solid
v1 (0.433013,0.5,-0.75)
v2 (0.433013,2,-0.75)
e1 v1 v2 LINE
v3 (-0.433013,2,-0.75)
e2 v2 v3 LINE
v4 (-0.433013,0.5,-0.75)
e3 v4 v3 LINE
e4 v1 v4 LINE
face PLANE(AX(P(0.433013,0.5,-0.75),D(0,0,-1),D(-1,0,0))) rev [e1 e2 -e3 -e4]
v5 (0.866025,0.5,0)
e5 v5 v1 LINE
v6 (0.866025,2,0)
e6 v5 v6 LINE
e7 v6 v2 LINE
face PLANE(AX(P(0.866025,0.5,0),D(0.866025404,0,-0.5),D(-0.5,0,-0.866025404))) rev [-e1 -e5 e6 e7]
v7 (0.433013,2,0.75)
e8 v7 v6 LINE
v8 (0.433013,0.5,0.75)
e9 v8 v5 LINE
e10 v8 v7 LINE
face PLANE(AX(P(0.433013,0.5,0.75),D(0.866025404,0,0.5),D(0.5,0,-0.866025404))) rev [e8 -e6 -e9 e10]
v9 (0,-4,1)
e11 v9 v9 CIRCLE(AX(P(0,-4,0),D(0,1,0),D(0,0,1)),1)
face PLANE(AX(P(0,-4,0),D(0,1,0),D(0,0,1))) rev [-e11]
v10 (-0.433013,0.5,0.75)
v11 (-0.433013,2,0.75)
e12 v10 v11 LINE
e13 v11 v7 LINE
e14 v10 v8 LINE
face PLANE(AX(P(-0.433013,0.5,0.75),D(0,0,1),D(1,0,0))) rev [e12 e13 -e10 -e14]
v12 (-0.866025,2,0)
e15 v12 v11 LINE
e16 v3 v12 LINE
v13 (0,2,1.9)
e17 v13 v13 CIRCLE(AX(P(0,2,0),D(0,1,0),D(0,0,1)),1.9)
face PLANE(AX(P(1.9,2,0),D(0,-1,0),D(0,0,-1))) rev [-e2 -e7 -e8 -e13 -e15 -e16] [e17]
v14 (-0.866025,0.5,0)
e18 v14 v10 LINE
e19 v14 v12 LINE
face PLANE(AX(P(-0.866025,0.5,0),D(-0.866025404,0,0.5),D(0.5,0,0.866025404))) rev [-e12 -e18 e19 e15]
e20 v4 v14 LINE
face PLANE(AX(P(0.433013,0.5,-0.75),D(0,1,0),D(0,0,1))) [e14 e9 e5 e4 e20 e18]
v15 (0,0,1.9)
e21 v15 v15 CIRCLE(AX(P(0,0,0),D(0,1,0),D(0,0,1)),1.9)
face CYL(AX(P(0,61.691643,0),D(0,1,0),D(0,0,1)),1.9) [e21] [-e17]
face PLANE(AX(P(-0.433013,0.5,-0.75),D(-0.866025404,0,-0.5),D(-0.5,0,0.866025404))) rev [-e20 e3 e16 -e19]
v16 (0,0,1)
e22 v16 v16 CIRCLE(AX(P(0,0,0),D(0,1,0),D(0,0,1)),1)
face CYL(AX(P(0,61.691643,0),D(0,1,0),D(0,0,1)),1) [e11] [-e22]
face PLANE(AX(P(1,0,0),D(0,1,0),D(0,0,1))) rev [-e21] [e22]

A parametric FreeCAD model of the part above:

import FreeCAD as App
import Part
import Sketcher
from FreeCAD import Vector
Q = App.Units.Quantity

doc = App.newDocument("Part")
body = doc.addObject("PartDesign::Body", "Body")

# Sketch on XY plane
sketch1 = doc.addObject("Sketcher::SketchObject", "Sketch")
body.addObject(sketch1)
sketch1.AttachmentSupport = (doc.XY_Plane, [""])
sketch1.MapMode = "FlatFace"
sketch1.addGeometry(Part.LineSegment(Vector(0, -4, 0), Vector(1, -4, 0)), False)
sketch1.addGeometry(Part.LineSegment(Vector(1, -4, 0), Vector(1, 0, 0)), False)
sketch1.addGeometry(Part.LineSegment(Vector(1, 0, 0), Vector(1.9, 0, 0)), False)
sketch1.addGeometry(Part.LineSegment(Vector(1.9, 0, 0), Vector(1.9, 2, 0)), False)
sketch1.addGeometry(Part.LineSegment(Vector(1.9, 2, 0), Vector(0, 2, 0)), False)
sketch1.addGeometry(Part.LineSegment(Vector(0, 2, 0), Vector(0, -4, 0)), False)
sketch1.addConstraint(Sketcher.Constraint("Coincident", 0, 2, 1, 1))
sketch1.addConstraint(Sketcher.Constraint("Coincident", 1, 2, 2, 1))
sketch1.addConstraint(Sketcher.Constraint("Coincident", 2, 2, 3, 1))
sketch1.addConstraint(Sketcher.Constraint("Coincident", 3, 2, 4, 1))
sketch1.addConstraint(Sketcher.Constraint("Coincident", 4, 2, 5, 1))
sketch1.addConstraint(Sketcher.Constraint("Coincident", 5, 2, 0, 1))
sketch1.addConstraint(Sketcher.Constraint("Horizontal", 0))
sketch1.addConstraint(Sketcher.Constraint("Vertical", 1))
sketch1.addConstraint(Sketcher.Constraint("Horizontal", 2))
sketch1.addConstraint(Sketcher.Constraint("Vertical", 3))
sketch1.addConstraint(Sketcher.Constraint("Horizontal", 4))
sketch1.addConstraint(Sketcher.Constraint("Vertical", 5))
sketch1.addConstraint(Sketcher.Constraint("PointOnObject", 1, 2, -1))
sketch1.addConstraint(Sketcher.Constraint("PointOnObject", 4, 2, -2))
sketch1.addConstraint(Sketcher.Constraint("DistanceX", 0, 1, 0, 2, 1.0))
sketch1.addConstraint(Sketcher.Constraint("DistanceY", 1, 1, 1, 2, 4.0))
sketch1.addConstraint(Sketcher.Constraint("DistanceY", 3, 1, 3, 2, 2.0))
sketch1.addConstraint(Sketcher.Constraint("DistanceX", 2, 1, 2, 2, 0.9))
revolution = doc.addObject("PartDesign::Revolution", "Revolution")
body.addObject(revolution)
revolution.Profile = sketch1
revolution.ReferenceAxis = (sketch1, ["V_Axis"])
revolution.Angle = 360

# Sketch on XZ plane
sketch2 = doc.addObject("Sketcher::SketchObject", "Sketch001")
body.addObject(sketch2)
sketch2.AttachmentSupport = (doc.XZ_Plane, [""])
sketch2.MapMode = "FlatFace"
sketch2.AttachmentOffset = App.Placement(Vector(0, 0, -2), App.Rotation())
sketch2.addGeometry(Part.LineSegment(Vector(0.433013, -0.75, 0), Vector(-0.433013, -0.75, 0)), False)
sketch2.addGeometry(Part.LineSegment(Vector(-0.433013, -0.75, 0), Vector(-0.866025, 0, 0)), False)
sketch2.addGeometry(Part.LineSegment(Vector(-0.866025, 0, 0), Vector(-0.433013, 0.75, 0)), False)
sketch2.addGeometry(Part.LineSegment(Vector(-0.433013, 0.75, 0), Vector(0.433013, 0.75, 0)), False)
sketch2.addGeometry(Part.LineSegment(Vector(0.433013, 0.75, 0), Vector(0.866025, 0, 0)), False)
sketch2.addGeometry(Part.LineSegment(Vector(0.866025, 0, 0), Vector(0.433013, -0.75, 0)), False)
sketch2.addConstraint(Sketcher.Constraint("Coincident", 0, 2, 1, 1))
sketch2.addConstraint(Sketcher.Constraint("Coincident", 1, 2, 2, 1))
sketch2.addConstraint(Sketcher.Constraint("Coincident", 2, 2, 3, 1))
sketch2.addConstraint(Sketcher.Constraint("Coincident", 3, 2, 4, 1))
sketch2.addConstraint(Sketcher.Constraint("Coincident", 4, 2, 5, 1))
sketch2.addConstraint(Sketcher.Constraint("Coincident", 5, 2, 0, 1))
sketch2.addConstraint(Sketcher.Constraint("Horizontal", 0))
sketch2.addConstraint(Sketcher.Constraint("Horizontal", 3))
sketch2.addConstraint(Sketcher.Constraint("Symmetric", 0, 2, 3, 2, -1, 1))
sketch2.addConstraint(Sketcher.Constraint("Symmetric", 1, 2, 4, 2, -1, 1))
sketch2.addConstraint(Sketcher.Constraint("PointOnObject", 1, 2, -1))
sketch2.addConstraint(Sketcher.Constraint("Parallel", 2, 5))
sketch2.addConstraint(Sketcher.Constraint("Vertical", 0, 2, 2, 2))
sketch2.addConstraint(Sketcher.Constraint("Angle", 1, Q("120 deg")))
sketch2.addConstraint(Sketcher.Constraint("DistanceY", 0, 2, 2, 2, 1.5))
sketch2.addConstraint(Sketcher.Constraint("DistanceX", 0, 2, 0, 1, 0.866025))
pocket1 = doc.addObject("PartDesign::Pocket", "Pocket")
body.addObject(pocket1)
pocket1.Profile = sketch2
pocket1.Length = 1.5
pocket1.Reversed = True

doc.recompute()
